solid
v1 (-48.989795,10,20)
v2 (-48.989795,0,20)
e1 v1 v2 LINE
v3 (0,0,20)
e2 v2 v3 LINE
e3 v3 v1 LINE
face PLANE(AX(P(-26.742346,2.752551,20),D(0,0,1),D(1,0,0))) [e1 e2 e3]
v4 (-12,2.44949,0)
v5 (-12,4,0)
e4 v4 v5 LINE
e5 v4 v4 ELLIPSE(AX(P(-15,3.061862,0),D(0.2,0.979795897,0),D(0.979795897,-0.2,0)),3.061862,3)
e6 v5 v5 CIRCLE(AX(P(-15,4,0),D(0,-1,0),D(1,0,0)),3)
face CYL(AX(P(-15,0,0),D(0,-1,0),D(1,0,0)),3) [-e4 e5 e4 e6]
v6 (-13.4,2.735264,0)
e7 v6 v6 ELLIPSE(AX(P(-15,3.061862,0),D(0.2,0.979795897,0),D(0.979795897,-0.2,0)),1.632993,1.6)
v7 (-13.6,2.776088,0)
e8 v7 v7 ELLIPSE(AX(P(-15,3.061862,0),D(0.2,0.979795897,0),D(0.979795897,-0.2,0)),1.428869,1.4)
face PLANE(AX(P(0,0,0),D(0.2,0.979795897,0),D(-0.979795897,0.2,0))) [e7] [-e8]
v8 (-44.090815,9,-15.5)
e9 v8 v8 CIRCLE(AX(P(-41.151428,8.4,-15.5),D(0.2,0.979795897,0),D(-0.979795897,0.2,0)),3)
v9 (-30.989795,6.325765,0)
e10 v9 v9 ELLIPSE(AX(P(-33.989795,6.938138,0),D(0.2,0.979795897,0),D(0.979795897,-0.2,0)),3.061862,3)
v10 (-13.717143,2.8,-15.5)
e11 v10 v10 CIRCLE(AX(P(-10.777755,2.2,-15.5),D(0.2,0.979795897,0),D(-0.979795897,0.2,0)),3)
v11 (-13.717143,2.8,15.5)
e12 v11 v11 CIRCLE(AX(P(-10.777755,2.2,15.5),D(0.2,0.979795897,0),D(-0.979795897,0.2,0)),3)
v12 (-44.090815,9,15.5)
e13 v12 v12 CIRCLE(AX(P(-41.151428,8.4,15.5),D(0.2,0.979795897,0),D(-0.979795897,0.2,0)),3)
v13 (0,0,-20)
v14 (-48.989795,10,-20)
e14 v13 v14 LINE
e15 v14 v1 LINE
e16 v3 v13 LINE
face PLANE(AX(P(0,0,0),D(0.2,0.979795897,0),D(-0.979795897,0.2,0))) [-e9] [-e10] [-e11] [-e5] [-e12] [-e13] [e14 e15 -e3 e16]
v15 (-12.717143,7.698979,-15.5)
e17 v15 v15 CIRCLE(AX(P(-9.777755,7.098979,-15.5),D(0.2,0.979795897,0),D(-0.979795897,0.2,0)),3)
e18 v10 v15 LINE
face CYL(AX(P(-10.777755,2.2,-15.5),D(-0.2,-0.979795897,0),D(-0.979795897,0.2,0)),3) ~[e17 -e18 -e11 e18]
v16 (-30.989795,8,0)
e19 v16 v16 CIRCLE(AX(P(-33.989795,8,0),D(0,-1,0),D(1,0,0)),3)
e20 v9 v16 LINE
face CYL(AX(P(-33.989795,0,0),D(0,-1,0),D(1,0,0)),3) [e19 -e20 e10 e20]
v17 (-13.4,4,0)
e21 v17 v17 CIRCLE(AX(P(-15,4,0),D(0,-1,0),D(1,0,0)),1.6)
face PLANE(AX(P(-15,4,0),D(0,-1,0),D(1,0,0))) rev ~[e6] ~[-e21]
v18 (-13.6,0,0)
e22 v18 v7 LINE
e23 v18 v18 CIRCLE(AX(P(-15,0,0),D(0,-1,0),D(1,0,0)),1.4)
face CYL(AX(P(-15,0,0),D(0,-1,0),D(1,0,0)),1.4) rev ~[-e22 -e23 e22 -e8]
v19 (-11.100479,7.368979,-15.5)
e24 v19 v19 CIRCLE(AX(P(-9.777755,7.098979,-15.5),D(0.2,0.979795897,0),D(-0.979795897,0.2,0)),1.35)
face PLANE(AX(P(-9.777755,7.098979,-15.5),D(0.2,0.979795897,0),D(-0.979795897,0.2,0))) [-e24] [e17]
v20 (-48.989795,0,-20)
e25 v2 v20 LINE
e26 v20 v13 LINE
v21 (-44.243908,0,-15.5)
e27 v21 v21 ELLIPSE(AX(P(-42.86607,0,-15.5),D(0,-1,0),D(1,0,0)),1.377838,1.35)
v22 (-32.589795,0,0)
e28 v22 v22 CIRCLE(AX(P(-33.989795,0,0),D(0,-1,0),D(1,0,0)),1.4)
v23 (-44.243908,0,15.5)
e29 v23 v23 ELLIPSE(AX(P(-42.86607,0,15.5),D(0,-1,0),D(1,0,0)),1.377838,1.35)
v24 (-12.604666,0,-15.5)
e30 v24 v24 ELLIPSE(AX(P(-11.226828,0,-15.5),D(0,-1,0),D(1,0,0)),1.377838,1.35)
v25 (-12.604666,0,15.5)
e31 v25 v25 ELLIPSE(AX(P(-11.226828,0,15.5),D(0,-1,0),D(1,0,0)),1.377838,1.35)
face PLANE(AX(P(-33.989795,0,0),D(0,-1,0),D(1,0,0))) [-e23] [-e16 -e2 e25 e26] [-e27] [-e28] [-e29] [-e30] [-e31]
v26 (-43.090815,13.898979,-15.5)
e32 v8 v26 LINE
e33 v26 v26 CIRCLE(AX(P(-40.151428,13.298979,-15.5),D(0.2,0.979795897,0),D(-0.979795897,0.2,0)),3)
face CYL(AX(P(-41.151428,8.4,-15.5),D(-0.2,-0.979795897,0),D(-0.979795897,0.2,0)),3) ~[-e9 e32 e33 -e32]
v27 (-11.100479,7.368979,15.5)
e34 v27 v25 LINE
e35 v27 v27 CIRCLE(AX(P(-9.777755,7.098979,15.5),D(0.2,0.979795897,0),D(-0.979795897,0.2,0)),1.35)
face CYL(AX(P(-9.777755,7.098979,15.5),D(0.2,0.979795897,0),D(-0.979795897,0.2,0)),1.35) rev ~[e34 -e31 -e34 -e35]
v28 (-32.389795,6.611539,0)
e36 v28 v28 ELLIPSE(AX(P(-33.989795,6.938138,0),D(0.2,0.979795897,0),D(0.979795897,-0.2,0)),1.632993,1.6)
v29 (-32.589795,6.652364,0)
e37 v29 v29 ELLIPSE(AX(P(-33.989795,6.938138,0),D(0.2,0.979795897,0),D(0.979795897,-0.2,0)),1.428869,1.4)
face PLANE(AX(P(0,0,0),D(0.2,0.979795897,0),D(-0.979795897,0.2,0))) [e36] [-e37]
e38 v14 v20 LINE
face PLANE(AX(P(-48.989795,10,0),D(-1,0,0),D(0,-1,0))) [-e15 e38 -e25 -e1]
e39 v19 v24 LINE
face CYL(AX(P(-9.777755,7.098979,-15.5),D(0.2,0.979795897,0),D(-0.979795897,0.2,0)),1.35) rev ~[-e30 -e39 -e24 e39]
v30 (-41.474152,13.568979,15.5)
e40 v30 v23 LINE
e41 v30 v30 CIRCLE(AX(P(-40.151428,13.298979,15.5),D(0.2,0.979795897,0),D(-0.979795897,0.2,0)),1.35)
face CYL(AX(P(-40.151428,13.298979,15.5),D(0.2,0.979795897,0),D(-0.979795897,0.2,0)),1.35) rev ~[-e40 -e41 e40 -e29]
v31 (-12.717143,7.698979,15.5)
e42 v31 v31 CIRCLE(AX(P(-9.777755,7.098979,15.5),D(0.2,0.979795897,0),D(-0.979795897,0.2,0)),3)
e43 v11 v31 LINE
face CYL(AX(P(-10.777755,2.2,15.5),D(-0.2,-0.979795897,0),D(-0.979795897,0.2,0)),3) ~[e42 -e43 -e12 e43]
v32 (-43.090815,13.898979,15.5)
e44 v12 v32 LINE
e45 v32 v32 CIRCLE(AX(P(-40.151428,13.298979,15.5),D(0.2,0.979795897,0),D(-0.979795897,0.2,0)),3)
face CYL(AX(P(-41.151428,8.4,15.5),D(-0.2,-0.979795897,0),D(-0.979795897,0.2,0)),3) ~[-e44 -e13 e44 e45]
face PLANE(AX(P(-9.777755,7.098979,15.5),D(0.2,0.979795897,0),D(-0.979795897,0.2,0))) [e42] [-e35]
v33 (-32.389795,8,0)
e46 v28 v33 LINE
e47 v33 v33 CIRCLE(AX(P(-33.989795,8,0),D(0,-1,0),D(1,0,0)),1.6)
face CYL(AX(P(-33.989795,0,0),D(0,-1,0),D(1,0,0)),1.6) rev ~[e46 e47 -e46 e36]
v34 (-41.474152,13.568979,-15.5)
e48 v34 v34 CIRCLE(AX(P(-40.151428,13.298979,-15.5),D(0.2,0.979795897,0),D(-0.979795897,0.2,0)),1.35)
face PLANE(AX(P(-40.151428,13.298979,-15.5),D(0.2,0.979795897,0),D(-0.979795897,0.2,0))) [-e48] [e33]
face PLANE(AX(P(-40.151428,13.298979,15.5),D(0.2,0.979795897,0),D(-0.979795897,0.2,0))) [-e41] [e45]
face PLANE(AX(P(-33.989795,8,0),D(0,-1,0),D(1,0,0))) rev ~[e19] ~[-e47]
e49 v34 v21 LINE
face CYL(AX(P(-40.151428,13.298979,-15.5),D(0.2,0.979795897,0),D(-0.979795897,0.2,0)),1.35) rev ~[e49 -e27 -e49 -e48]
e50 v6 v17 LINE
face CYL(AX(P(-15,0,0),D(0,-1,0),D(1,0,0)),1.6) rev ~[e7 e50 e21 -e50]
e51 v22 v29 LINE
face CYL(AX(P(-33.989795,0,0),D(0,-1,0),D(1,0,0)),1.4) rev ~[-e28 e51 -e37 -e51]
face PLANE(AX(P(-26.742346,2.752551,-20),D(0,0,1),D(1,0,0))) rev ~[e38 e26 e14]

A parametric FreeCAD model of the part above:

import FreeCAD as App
import Part
import Sketcher

V = App.Vector

doc = App.newDocument("Part")
body = doc.addObject("PartDesign::Body", "Body")

sketch1 = body.newObject("Sketcher::SketchObject", "Sketch")
sketch1.AttachmentSupport = (doc.getObject("XY_Plane"), [""])
sketch1.MapMode = "FlatFace"
sketch1.addGeometry([
    Part.LineSegment(V(0, 0, 0), V(-49, 10, 0)),
    Part.LineSegment(V(-49, 10, 0), V(-49, 0, 0)),
    Part.LineSegment(V(-49, 0, 0), V(0, 0, 0)),
], False)
sketch1.addConstraint([
    Sketcher.Constraint("Coincident", 0, 2, 1, 1),
    Sketcher.Constraint("Coincident", 1, 2, 2, 1),
    Sketcher.Constraint("Coincident", 2, 2, 0, 1),
    Sketcher.Constraint("Vertical", 1),
    Sketcher.Constraint("Horizontal", 2),
    Sketcher.Constraint("Coincident", 2, 2, -1, 1),
    Sketcher.Constraint("DistanceY", 1, 2, 1, 1, 10.0),
    Sketcher.Constraint("Distance", 0, 50.0),
])
pad1 = body.newObject("PartDesign::Pad", "Pad")
pad1.Profile = sketch1
pad1.Length = 40
pad1.Midplane = True

sketch2 = body.newObject("Sketcher::SketchObject", "Sketch001")
sketch2.Placement = App.Placement(V(0, 0, 0), App.Rotation(V(-0.979795897, 0.2, 0), V(0, 0, 1), V(0.2, 0.979795897, 0), "ZXY"))
sketch2.addGeometry([
    Part.Circle(V(42, 15.5, 0), V(0, 0, 1), 3),
    Part.Circle(V(42, -15.5, 0), V(0, 0, 1), 3),
    Part.Circle(V(11, -15.5, 0), V(0, 0, 1), 3),
    Part.Circle(V(11, 15.5, 0), V(0, 0, 1), 3),
], False)
sketch2.addConstraint([
    Sketcher.Constraint("Equal", 0, 1),
    Sketcher.Constraint("Equal", 1, 2),
    Sketcher.Constraint("Equal", 2, 3),
    Sketcher.Constraint("Symmetric", 0, 3, 1, 3, -1),
    Sketcher.Constraint("Symmetric", 2, 3, 3, 3, -1),
    Sketcher.Constraint("Horizontal", 1, 3, 2, 3),
    Sketcher.Constraint("Diameter", 0, 6.0),
    Sketcher.Constraint("DistanceX", -1, 1, 0, 3, 42.0),
    Sketcher.Constraint("DistanceX", -1, 1, 2, 3, 11.0),
    Sketcher.Constraint("DistanceY", 1, 3, 0, 3, 31.0),
])
pad2 = body.newObject("PartDesign::Pad", "Pad001")
pad2.Profile = sketch2
pad2.Length = 5

sketch3 = body.newObject("Sketcher::SketchObject", "Sketch002")
sketch3.Placement = App.Placement(V(1, 4.898979, 0), App.Rotation(V(-0.979795897, 0.2, 0), V(0, 0, 1), V(0.2, 0.979795897, 0), "ZXY"))
sketch3.addGeometry([
    Part.Circle(V(42, -15.5, 0), V(0, 0, 1), 1.4),
    Part.Circle(V(11, -15.5, 0), V(0, 0, 1), 1.4),
    Part.Circle(V(42, 15.5, 0), V(0, 0, 1), 1.4),
    Part.Circle(V(11, 15.5, 0), V(0, 0, 1), 1.4),
], False)
sketch3.addConstraint([
    Sketcher.Constraint("Equal", 0, 1),
    Sketcher.Constraint("Equal", 1, 2),
    Sketcher.Constraint("Equal", 2, 3),
    Sketcher.Constraint("Symmetric", 0, 3, 2, 3, -1),
    Sketcher.Constraint("Symmetric", 1, 3, 3, 3, -1),
    Sketcher.Constraint("Horizontal", 0, 3, 1, 3),
    Sketcher.Constraint("Diameter", 0, 2.7),
    Sketcher.Constraint("DistanceX", -1, 1, 0, 3, 42.0),
    Sketcher.Constraint("DistanceX", -1, 1, 1, 3, 11.0),
    Sketcher.Constraint("DistanceY", 0, 3, 2, 3, 31.0),
])
pocket1 = body.newObject("PartDesign::Pocket", "Pocket")
pocket1.Profile = sketch3
pocket1.Type = "ThroughAll"

sketch4 = body.newObject("Sketcher::SketchObject", "Sketch003")
sketch4.AttachmentSupport = (doc.getObject("XZ_Plane"), [""])
sketch4.MapMode = "FlatFace"
sketch4.addGeometry([
    Part.Circle(V(-15, 0, 0), V(0, 0, 1), 1.4),
    Part.Circle(V(-34, 0, 0), V(0, 0, 1), 1.4),
], False)
sketch4.addConstraint([
    Sketcher.Constraint("Equal", 0, 1),
    Sketcher.Constraint("PointOnObject", 0, 3, -1),
    Sketcher.Constraint("PointOnObject", 1, 3, -1),
    Sketcher.Constraint("Diameter", 0, 2.8),
    Sketcher.Constraint("DistanceX", 0, 3, -1, 1, 15.0),
    Sketcher.Constraint("DistanceX", 1, 3, -1, 1, 33.989795),
])
pocket2 = body.newObject("PartDesign::Pocket", "Pocket001")
pocket2.Profile = sketch4
pocket2.Type = "ThroughAll"

sketch5 = body.newObject("Sketcher::SketchObject", "Sketch004")
sketch5.AttachmentSupport = (doc.getObject("XZ_Plane"), [""])
sketch5.MapMode = "FlatFace"
sketch5.addGeometry([
    Part.Circle(V(-15, 0, 0), V(0, 0, 1), 3),
    Part.Circle(V(-15, 0, 0), V(0, 0, 1), 1.6),
], False)
sketch5.addConstraint([
    Sketcher.Constraint("Coincident", 1, 3, 0, 3),
    Sketcher.Constraint("PointOnObject", 0, 3, -1),
    Sketcher.Constraint("Diameter", 0, 6.0),
    Sketcher.Constraint("Diameter", 1, 3.2),
    Sketcher.Constraint("DistanceX", 0, 3, -1, 1, 15.0),
])
pad3 = body.newObject("PartDesign::Pad", "Pad002")
pad3.Profile = sketch5
pad3.Length = 4
pad3.Reversed = True

sketch6 = body.newObject("Sketcher::SketchObject", "Sketch005")
sketch6.AttachmentSupport = (doc.getObject("XZ_Plane"), [""])
sketch6.MapMode = "FlatFace"
sketch6.addGeometry([
    Part.Circle(V(-34, 0, 0), V(0, 0, 1), 3),
    Part.Circle(V(-34, 0, 0), V(0, 0, 1), 1.6),
], False)
sketch6.addConstraint([
    Sketcher.Constraint("Coincident", 1, 3, 0, 3),
    Sketcher.Constraint("PointOnObject", 0, 3, -1),
    Sketcher.Constraint("Diameter", 0, 6.0),
    Sketcher.Constraint("Diameter", 1, 3.2),
    Sketcher.Constraint("DistanceX", 0, 3, -1, 1, 33.989795),
])
pad4 = body.newObject("PartDesign::Pad", "Pad003")
pad4.Profile = sketch6
pad4.Length = 8
pad4.Reversed = True

doc.recompute()
